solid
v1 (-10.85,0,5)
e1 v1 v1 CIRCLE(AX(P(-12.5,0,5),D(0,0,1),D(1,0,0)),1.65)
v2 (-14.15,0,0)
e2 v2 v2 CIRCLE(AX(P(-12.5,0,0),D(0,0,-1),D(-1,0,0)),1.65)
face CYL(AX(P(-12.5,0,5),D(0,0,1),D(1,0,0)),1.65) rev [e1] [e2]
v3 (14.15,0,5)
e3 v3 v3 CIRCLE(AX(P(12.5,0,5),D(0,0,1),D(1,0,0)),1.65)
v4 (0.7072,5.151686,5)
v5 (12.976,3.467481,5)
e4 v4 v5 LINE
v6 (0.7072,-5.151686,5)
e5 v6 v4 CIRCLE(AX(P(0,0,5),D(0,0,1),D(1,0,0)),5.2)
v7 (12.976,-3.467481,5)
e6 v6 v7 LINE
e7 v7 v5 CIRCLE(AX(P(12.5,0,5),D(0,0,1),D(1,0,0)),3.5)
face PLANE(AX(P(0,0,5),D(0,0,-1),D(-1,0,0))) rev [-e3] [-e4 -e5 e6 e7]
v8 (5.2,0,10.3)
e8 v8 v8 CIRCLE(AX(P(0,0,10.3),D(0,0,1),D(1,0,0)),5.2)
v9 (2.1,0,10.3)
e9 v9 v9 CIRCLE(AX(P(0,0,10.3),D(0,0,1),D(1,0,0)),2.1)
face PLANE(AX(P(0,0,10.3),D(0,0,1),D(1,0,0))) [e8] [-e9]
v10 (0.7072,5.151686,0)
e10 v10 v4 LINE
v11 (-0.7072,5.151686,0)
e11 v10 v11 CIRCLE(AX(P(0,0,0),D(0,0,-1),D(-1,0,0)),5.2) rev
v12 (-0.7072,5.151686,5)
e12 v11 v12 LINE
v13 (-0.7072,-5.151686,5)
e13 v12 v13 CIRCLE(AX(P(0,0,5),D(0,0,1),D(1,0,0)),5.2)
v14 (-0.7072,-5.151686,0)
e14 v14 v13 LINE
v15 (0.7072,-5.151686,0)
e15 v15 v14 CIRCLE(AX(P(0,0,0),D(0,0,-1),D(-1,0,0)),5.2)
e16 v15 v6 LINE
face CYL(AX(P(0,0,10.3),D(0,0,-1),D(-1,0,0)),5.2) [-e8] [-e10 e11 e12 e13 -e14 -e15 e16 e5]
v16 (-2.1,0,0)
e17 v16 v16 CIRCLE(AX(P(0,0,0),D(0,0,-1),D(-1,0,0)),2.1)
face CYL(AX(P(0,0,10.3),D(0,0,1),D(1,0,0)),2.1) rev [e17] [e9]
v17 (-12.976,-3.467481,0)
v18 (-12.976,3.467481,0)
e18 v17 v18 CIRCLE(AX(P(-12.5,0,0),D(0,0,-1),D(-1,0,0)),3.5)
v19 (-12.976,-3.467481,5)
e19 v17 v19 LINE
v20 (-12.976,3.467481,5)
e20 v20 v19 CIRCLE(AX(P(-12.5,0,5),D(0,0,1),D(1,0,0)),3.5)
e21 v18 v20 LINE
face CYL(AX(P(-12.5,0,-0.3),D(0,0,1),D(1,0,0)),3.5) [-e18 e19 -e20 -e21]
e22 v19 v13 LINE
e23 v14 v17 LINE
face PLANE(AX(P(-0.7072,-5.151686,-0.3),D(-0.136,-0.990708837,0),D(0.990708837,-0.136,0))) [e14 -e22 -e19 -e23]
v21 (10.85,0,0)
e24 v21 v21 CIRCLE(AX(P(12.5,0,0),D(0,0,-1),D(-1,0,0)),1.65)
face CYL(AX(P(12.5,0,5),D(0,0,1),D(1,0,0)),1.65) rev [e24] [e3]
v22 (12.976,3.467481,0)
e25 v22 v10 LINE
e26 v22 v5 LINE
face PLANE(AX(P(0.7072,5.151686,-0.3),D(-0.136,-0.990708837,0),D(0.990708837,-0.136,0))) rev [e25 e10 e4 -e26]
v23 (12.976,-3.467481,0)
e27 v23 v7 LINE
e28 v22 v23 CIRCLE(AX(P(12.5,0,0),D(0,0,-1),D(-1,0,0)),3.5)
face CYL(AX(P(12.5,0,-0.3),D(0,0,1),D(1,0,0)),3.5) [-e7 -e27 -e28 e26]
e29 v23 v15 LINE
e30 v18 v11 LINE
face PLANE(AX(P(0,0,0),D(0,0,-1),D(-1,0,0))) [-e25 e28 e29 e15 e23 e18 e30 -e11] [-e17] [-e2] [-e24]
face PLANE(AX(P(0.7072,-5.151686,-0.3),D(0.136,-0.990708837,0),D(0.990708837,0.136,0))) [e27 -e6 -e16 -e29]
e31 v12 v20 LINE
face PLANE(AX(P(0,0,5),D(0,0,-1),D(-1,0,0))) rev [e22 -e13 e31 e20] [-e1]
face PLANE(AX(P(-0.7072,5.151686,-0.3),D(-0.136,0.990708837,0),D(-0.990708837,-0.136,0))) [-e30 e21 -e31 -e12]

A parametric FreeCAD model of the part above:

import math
import FreeCAD as App
import Part
import Sketcher
from FreeCAD import Vector


def add_polygon(sketch, points):
    """Adds a closed chain of lines whose ends are joined by coincident constraints."""
    first, n = sketch.GeometryCount, len(points)
    for a, b in zip(points, points[1:] + points[:1]):
        sketch.addGeometry(Part.LineSegment(App.Vector(*a, 0), App.Vector(*b, 0)), False)
    for i in range(n):
        sketch.addConstraint(Sketcher.Constraint("Coincident", first + i, 2, first + (i + 1) % n, 1))

doc = App.newDocument("Part")
body = doc.addObject("PartDesign::Body", "Body")

# Sketch on XY plane
sketch1 = body.newObject("Sketcher::SketchObject", "Sketch")
sketch1.AttachmentSupport = (doc.getObject("XY_Plane"), [""])
sketch1.MapMode = "FlatFace"
add_polygon(sketch1, [(-16, 5.2), (-16, -5.2), (16, -5.2), (16, 5.2)])  # lines 0-3
sketch1.addGeometry(Part.Circle(Vector(-12.5, 0, 0), Vector(0, 0, 1), 0.5), False)  # 4
sketch1.addGeometry(Part.Circle(Vector(0, 0, 0), Vector(0, 0, 1), 0.5), False)  # 5
sketch1.addGeometry(Part.Circle(Vector(12.5, 0, 0), Vector(0, 0, 1), 0.5), False)  # 6
sketch1.addConstraint([
    Sketcher.Constraint("Vertical", 0),
    Sketcher.Constraint("Horizontal", 1),
    Sketcher.Constraint("Vertical", 2),
    Sketcher.Constraint("Horizontal", 3),
    Sketcher.Constraint("Coincident", 5, 3, -1, 1),
    Sketcher.Constraint("Equal", 4, 5),
    Sketcher.Constraint("Equal", 5, 6),
    Sketcher.Constraint("Symmetric", 4, 3, 6, 3, -1, 1),
    Sketcher.Constraint("Symmetric", 0, 2, 2, 2, -1, 1),
    Sketcher.Constraint("PointOnObject", 4, 3, -1),
    Sketcher.Constraint("Diameter", 4, 1.0),
    Sketcher.Constraint("DistanceX", 1, 1, 1, 2, 32.0),
    Sketcher.Constraint("DistanceY", 0, 2, 0, 1, 10.4),
    Sketcher.Constraint("DistanceX", 4, 3, 6, 3, 25.0),
])
pad1 = body.newObject("PartDesign::Pad", "Pad")
pad1.Profile = sketch1
pad1.Length = 5

# Sketch on XY plane
sketch2 = body.newObject("Sketcher::SketchObject", "Sketch001")
sketch2.AttachmentSupport = (doc.getObject("XY_Plane"), [""])
sketch2.MapMode = "FlatFace"
sketch2.AttachmentOffset = App.Placement(Vector(0, 0, 5), App.Rotation())
sketch2.addGeometry([
    Part.Circle(Vector(0, 0, 0), Vector(0, 0, 1), 5.2),
    Part.Circle(Vector(0, 0, 0), Vector(0, 0, 1), 0.5),
], False)
sketch2.addConstraint([
    Sketcher.Constraint("Coincident", 0, 3, -1, 1),
    Sketcher.Constraint("Coincident", 1, 3, -1, 1),
    Sketcher.Constraint("Diameter", 1, 1.0),
    Sketcher.Constraint("Diameter", 0, 10.4),
])
pad2 = body.newObject("PartDesign::Pad", "Pad001")
pad2.Profile = sketch2
pad2.Length = 5.3

# Sketch on XY plane
sketch3 = body.newObject("Sketcher::SketchObject", "Sketch002")
sketch3.AttachmentSupport = (doc.getObject("XY_Plane"), [""])
sketch3.MapMode = "FlatFace"
sketch3.AttachmentOffset = App.Placement(Vector(0, 0, 5), App.Rotation())
sketch3.addGeometry([
    Part.LineSegment(Vector(-13, 3.5, 0), Vector(-0.7, 5.2, 0)),  # 0
    Part.ArcOfCircle(Part.Circle(Vector(0, 0, 0), Vector(0, 0, 1), 5.2), math.radians(90), math.radians(97.82)),  # 1
    Part.LineSegment(Vector(0, 5.2, 0), Vector(-16, 5.2, 0)),  # 2
    Part.LineSegment(Vector(-16, 5.2, 0), Vector(-16, 0, 0)),  # 3
    Part.ArcOfCircle(Part.Circle(Vector(-12.5, 0, 0), Vector(0, 0, 1), 3.5), math.radians(98), math.radians(180)),  # 4
    Part.ArcOfCircle(Part.Circle(Vector(0, 0, 0), Vector(0, 0, 1), 5.2), math.radians(-97.82), math.radians(-90)),  # 5
    Part.LineSegment(Vector(-0.7, -5.2, 0), Vector(-13, -3.5, 0)),  # 6
    Part.ArcOfCircle(Part.Circle(Vector(-12.5, 0, 0), Vector(0, 0, 1), 3.5), math.radians(180), math.radians(262)),  # 7
    Part.LineSegment(Vector(-16, 0, 0), Vector(-16, -5.2, 0)),  # 8
    Part.LineSegment(Vector(-16, -5.2, 0), Vector(0, -5.2, 0)),  # 9
    Part.ArcOfCircle(Part.Circle(Vector(0, 0, 0), Vector(0, 0, 1), 5.2), math.radians(-90), math.radians(-82.18)),  # 10
    Part.LineSegment(Vector(0, -5.2, 0), Vector(16, -5.2, 0)),  # 11
    Part.LineSegment(Vector(16, -5.2, 0), Vector(16, 0, 0)),  # 12
    Part.ArcOfCircle(Part.Circle(Vector(12.5, 0, 0), Vector(0, 0, 1), 3.5), math.radians(-82), math.radians(0)),  # 13
    Part.LineSegment(Vector(13, -3.5, 0), Vector(0.7, -5.2, 0)),  # 14
    Part.LineSegment(Vector(16, 5.2, 0), Vector(0, 5.2, 0)),  # 15
    Part.ArcOfCircle(Part.Circle(Vector(0, 0, 0), Vector(0, 0, 1), 5.2), math.radians(82.18), math.radians(90)),  # 16
    Part.LineSegment(Vector(0.7, 5.2, 0), Vector(13, 3.5, 0)),  # 17
    Part.ArcOfCircle(Part.Circle(Vector(12.5, 0, 0), Vector(0, 0, 1), 3.5), math.radians(0), math.radians(82)),  # 18
    Part.LineSegment(Vector(16, 0, 0), Vector(16, 5.2, 0)),  # 19
], False)
sketch3.addConstraint([
    Sketcher.Constraint("Tangent", 0, 2, 1, 2),
    Sketcher.Constraint("Tangent", 1, 1, 2, 1),
    Sketcher.Constraint("Coincident", 2, 2, 3, 1),
    Sketcher.Constraint("Tangent", 3, 2, 4, 2),
    Sketcher.Constraint("Tangent", 4, 1, 0, 1),
    Sketcher.Constraint("Tangent", 5, 1, 6, 1),
    Sketcher.Constraint("Tangent", 6, 2, 7, 2),
    Sketcher.Constraint("Tangent", 7, 1, 8, 1),
    Sketcher.Constraint("Coincident", 8, 2, 9, 1),
    Sketcher.Constraint("Tangent", 9, 2, 5, 2),
    Sketcher.Constraint("Tangent", 10, 1, 11, 1),
    Sketcher.Constraint("Coincident", 11, 2, 12, 1),
    Sketcher.Constraint("Tangent", 12, 2, 13, 2),
    Sketcher.Constraint("Tangent", 13, 1, 14, 1),
    Sketcher.Constraint("Tangent", 14, 2, 10, 2),
    Sketcher.Constraint("Tangent", 15, 2, 16, 2),
    Sketcher.Constraint("Tangent", 16, 1, 17, 1),
    Sketcher.Constraint("Tangent", 17, 2, 18, 2),
    Sketcher.Constraint("Tangent", 18, 1, 19, 1),
    Sketcher.Constraint("Coincident", 19, 2, 15, 1),
    Sketcher.Constraint("Horizontal", 2),
    Sketcher.Constraint("Vertical", 3),
    Sketcher.Constraint("Vertical", 8),
    Sketcher.Constraint("Horizontal", 9),
    Sketcher.Constraint("Horizontal", 11),
    Sketcher.Constraint("Vertical", 12),
    Sketcher.Constraint("Horizontal", 15),
    Sketcher.Constraint("Vertical", 19),
    Sketcher.Constraint("Coincident", 1, 3, -1, 1),
    Sketcher.Constraint("Coincident", 5, 3, -1, 1),
    Sketcher.Constraint("Coincident", 10, 3, -1, 1),
    Sketcher.Constraint("Coincident", 16, 3, -1, 1),
    Sketcher.Constraint("Coincident", 7, 3, 4, 3),
    Sketcher.Constraint("Coincident", 18, 3, 13, 3),
    Sketcher.Constraint("Equal", 1, 5),
    Sketcher.Constraint("Equal", 4, 7),
    Sketcher.Constraint("Equal", 5, 10),
    Sketcher.Constraint("Equal", 7, 13),
    Sketcher.Constraint("Equal", 10, 16),
    Sketcher.Constraint("Equal", 13, 18),
    Sketcher.Constraint("Symmetric", 4, 3, 13, 3, -1, 1),
    Sketcher.Constraint("PointOnObject", 4, 3, -1),
    Sketcher.Constraint("Radius", 1, 5.2),
    Sketcher.Constraint("Radius", 4, 3.5),
    Sketcher.Constraint("DistanceX", 2, 2, 2, 1, 16.0),
])
pocket1 = body.newObject("PartDesign::Pocket", "Pocket")
pocket1.Profile = sketch3
pocket1.Length = 5.3

# Sketch on XY plane
sketch4 = body.newObject("Sketcher::SketchObject", "Sketch003")
sketch4.AttachmentSupport = (doc.getObject("XY_Plane"), [""])
sketch4.MapMode = "FlatFace"
sketch4.AttachmentOffset = App.Placement(Vector(0, 0, 5), App.Rotation())
sketch4.addGeometry([
    Part.Circle(Vector(-12.5, 0, 0), Vector(0, 0, 1), 1.6),
    Part.Circle(Vector(12.5, 0, 0), Vector(0, 0, 1), 1.6),
], False)
sketch4.addConstraint([
    Sketcher.Constraint("Equal", 0, 1),
    Sketcher.Constraint("Symmetric", 0, 3, 1, 3, -1, 1),
    Sketcher.Constraint("PointOnObject", 0, 3, -1),
    Sketcher.Constraint("Diameter", 0, 3.3),
    Sketcher.Constraint("DistanceX", 0, 3, 1, 3, 25.0),
])
doc.recompute()
hole = body.newObject("PartDesign::Hole", "Hole")
hole.Profile = sketch4
hole.ThreadType = "None"
hole.Diameter = 3.3
hole.DepthType = "Dimension"
hole.Depth = 10.1
hole.DrillPoint = "Angled"
hole.DrillPointAngle = 118

# Sketch on XY plane
sketch5 = body.newObject("Sketcher::SketchObject", "Sketch004")
sketch5.AttachmentSupport = (doc.getObject("XY_Plane"), [""])
sketch5.MapMode = "FlatFace"
sketch5.AttachmentOffset = App.Placement(Vector(0, 0, 10.3), App.Rotation())
sketch5.addGeometry(Part.Circle(Vector(0, 0, 0), Vector(0, 0, 1), 2.1), False)
sketch5.addConstraint([
    Sketcher.Constraint("Coincident", 0, 3, -1, 1),
    Sketcher.Constraint("Diameter", 0, 4.2),
])
doc.recompute()
hole2 = body.newObject("PartDesign::Hole", "Hole001")
hole2.Profile = sketch5
hole2.ThreadType = "None"
hole2.Diameter = 4.2
hole2.DepthType = "Dimension"
hole2.Depth = 22.4
hole2.DrillPoint = "Angled"
hole2.DrillPointAngle = 118

doc.recompute()
